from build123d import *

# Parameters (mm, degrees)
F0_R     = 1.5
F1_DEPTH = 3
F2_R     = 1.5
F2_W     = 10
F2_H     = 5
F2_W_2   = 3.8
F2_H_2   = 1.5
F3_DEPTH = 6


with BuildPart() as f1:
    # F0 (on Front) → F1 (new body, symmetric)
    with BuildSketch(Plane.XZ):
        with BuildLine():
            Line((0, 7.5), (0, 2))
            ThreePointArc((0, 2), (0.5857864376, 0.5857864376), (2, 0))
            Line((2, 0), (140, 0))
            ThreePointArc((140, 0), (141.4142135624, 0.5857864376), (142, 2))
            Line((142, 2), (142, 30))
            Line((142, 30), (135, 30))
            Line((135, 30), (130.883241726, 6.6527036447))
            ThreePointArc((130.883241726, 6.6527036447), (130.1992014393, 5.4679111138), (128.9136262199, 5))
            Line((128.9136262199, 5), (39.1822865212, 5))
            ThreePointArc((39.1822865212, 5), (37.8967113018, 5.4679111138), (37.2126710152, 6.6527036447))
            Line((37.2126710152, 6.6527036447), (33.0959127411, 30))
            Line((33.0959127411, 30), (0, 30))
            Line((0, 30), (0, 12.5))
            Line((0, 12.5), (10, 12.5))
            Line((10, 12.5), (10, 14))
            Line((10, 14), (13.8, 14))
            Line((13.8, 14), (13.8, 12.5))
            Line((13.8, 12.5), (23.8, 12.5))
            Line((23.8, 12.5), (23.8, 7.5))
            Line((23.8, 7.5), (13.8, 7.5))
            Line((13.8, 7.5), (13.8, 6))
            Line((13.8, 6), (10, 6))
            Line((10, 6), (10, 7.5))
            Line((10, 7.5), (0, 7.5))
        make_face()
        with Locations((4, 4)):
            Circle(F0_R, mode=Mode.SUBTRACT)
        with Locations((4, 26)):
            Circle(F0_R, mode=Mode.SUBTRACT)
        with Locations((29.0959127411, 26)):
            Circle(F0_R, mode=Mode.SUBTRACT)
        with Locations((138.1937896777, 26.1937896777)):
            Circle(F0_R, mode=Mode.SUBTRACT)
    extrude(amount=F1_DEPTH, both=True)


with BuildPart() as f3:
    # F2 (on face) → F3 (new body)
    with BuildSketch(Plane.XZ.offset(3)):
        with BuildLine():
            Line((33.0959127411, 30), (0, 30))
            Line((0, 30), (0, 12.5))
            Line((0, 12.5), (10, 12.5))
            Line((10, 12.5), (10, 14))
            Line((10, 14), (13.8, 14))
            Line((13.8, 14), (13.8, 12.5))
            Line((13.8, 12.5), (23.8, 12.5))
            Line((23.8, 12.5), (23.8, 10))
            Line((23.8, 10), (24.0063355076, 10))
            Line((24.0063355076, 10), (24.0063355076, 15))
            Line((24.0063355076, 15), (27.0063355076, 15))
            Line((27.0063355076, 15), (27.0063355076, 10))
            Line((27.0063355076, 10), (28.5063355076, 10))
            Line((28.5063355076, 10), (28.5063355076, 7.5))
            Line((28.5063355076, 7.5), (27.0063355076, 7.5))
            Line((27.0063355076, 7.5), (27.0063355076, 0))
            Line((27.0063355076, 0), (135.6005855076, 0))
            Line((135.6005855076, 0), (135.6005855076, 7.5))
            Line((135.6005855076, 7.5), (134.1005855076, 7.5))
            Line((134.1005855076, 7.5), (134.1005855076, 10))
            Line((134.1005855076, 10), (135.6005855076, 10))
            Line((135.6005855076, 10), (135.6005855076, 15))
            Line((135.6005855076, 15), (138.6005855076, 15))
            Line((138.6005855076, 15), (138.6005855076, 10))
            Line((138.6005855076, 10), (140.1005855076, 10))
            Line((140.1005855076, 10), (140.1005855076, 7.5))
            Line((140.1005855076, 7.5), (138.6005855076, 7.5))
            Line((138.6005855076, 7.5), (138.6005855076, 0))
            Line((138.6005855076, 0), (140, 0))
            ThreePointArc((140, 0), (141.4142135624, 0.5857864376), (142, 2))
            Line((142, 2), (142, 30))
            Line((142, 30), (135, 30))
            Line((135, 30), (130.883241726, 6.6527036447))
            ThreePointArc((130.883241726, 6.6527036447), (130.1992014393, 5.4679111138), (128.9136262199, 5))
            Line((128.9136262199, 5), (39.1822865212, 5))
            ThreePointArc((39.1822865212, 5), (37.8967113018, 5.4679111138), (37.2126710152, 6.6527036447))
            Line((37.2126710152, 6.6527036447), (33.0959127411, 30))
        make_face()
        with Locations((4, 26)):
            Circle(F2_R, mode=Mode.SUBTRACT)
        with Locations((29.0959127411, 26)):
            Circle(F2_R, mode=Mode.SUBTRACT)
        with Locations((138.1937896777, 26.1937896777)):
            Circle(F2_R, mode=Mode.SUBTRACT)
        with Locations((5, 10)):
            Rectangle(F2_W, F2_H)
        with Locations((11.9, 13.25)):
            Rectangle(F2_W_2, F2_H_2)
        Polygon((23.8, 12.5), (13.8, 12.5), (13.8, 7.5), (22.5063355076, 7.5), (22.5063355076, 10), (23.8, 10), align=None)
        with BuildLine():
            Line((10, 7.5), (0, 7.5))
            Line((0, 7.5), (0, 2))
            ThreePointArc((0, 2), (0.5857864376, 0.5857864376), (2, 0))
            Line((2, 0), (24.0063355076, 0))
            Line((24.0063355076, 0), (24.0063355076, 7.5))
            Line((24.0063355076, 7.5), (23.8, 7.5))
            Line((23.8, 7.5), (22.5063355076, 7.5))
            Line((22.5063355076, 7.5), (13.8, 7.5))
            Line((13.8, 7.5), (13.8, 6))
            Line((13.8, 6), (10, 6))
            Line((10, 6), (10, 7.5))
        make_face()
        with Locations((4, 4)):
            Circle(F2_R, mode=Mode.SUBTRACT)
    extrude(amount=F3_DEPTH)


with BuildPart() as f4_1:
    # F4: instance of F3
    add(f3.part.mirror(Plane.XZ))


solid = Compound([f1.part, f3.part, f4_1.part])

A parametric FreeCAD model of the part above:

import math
import FreeCAD as App
import Part
import Sketcher
from FreeCAD import Vector
Q = App.Units.Quantity

doc = App.newDocument("Part")
body = doc.addObject("PartDesign::Body", "Body")

sketch1 = body.newObject("Sketcher::SketchObject", "Sketch")
sketch1.AttachmentSupport = (doc.getObject("XZ_Plane"), [""])
sketch1.MapMode = "FlatFace"
sketch1.addGeometry([
    Part.LineSegment(Vector(0, 7.5, 0), Vector(0, 2, 0)),
    Part.ArcOfCircle(Part.Circle(Vector(2, 2, 0), Vector(0, 0, 1), 2), math.radians(180), math.radians(270)),
    Part.LineSegment(Vector(2, 0, 0), Vector(140, 0, 0)),
    Part.ArcOfCircle(Part.Circle(Vector(140, 2, 0), Vector(0, 0, 1), 2), math.radians(-90), math.radians(0)),
    Part.LineSegment(Vector(142, 2, 0), Vector(142, 30, 0)),
    Part.LineSegment(Vector(142, 30, 0), Vector(135, 30, 0)),
    Part.LineSegment(Vector(135, 30, 0), Vector(130.9, 6.7, 0)),
    Part.ArcOfCircle(Part.Circle(Vector(128.9, 7, 0), Vector(0, 0, 1), 2), math.radians(-90), math.radians(-10)),
    Part.LineSegment(Vector(128.9, 5, 0), Vector(39.2, 5, 0)),
    Part.ArcOfCircle(Part.Circle(Vector(39.2, 7, 0), Vector(0, 0, 1), 2), math.radians(-170), math.radians(-90)),
    Part.LineSegment(Vector(37.2, 6.7, 0), Vector(33.1, 30, 0)),
    Part.LineSegment(Vector(33.1, 30, 0), Vector(0, 30, 0)),
    Part.LineSegment(Vector(0, 30, 0), Vector(0, 12.5, 0)),
    Part.LineSegment(Vector(0, 12.5, 0), Vector(10, 12.5, 0)),
    Part.LineSegment(Vector(10, 12.5, 0), Vector(10, 14, 0)),
    Part.LineSegment(Vector(10, 14, 0), Vector(13.8, 14, 0)),
    Part.LineSegment(Vector(13.8, 14, 0), Vector(13.8, 12.5, 0)),
    Part.LineSegment(Vector(13.8, 12.5, 0), Vector(23.8, 12.5, 0)),
    Part.LineSegment(Vector(23.8, 12.5, 0), Vector(23.8, 7.5, 0)),
    Part.LineSegment(Vector(23.8, 7.5, 0), Vector(13.8, 7.5, 0)),
    Part.LineSegment(Vector(13.8, 7.5, 0), Vector(13.8, 6, 0)),
    Part.LineSegment(Vector(13.8, 6, 0), Vector(10, 6, 0)),
    Part.LineSegment(Vector(10, 6, 0), Vector(10, 7.5, 0)),
    Part.LineSegment(Vector(10, 7.5, 0), Vector(0, 7.5, 0)),
    Part.Circle(Vector(4, 4, 0), Vector(0, 0, 1), 1.5),
    Part.Circle(Vector(4, 26, 0), Vector(0, 0, 1), 1.5),
    Part.Circle(Vector(29.1, 26, 0), Vector(0, 0, 1), 1.5),
    Part.Circle(Vector(138.2, 26.2, 0), Vector(0, 0, 1), 1.5),
], False)
sketch1.addConstraint([
    Sketcher.Constraint("Tangent", 0, 2, 1, 1),
    Sketcher.Constraint("Tangent", 1, 2, 2, 1),
    Sketcher.Constraint("Tangent", 2, 2, 3, 1),
    Sketcher.Constraint("Tangent", 3, 2, 4, 1),
    Sketcher.Constraint("Coincident", 4, 2, 5, 1),
    Sketcher.Constraint("Coincident", 5, 2, 6, 1),
    Sketcher.Constraint("Tangent", 6, 2, 7, 2),
    Sketcher.Constraint("Tangent", 7, 1, 8, 1),
    Sketcher.Constraint("Tangent", 8, 2, 9, 2),
    Sketcher.Constraint("Tangent", 9, 1, 10, 1),
    Sketcher.Constraint("Coincident", 10, 2, 11, 1),
    Sketcher.Constraint("Coincident", 11, 2, 12, 1),
    Sketcher.Constraint("Coincident", 12, 2, 13, 1),
    Sketcher.Constraint("Coincident", 13, 2, 14, 1),
    Sketcher.Constraint("Coincident", 14, 2, 15, 1),
    Sketcher.Constraint("Coincident", 15, 2, 16, 1),
    Sketcher.Constraint("Coincident", 16, 2, 17, 1),
    Sketcher.Constraint("Coincident", 17, 2, 18, 1),
    Sketcher.Constraint("Coincident", 18, 2, 19, 1),
    Sketcher.Constraint("Coincident", 19, 2, 20, 1),
    Sketcher.Constraint("Coincident", 20, 2, 21, 1),
    Sketcher.Constraint("Coincident", 21, 2, 22, 1),
    Sketcher.Constraint("Coincident", 22, 2, 23, 1),
    Sketcher.Constraint("Coincident", 23, 2, 0, 1),
    Sketcher.Constraint("Vertical", 0),
    Sketcher.Constraint("Horizontal", 2),
    Sketcher.Constraint("Vertical", 4),
    Sketcher.Constraint("Horizontal", 5),
    Sketcher.Constraint("Horizontal", 8),
    Sketcher.Constraint("Horizontal", 11),
    Sketcher.Constraint("Vertical", 12),
    Sketcher.Constraint("Horizontal", 13),
    Sketcher.Constraint("Vertical", 14),
    Sketcher.Constraint("Horizontal", 15),
    Sketcher.Constraint("Vertical", 16),
    Sketcher.Constraint("Horizontal", 17),
    Sketcher.Constraint("Vertical", 18),
    Sketcher.Constraint("Horizontal", 19),
    Sketcher.Constraint("Vertical", 20),
    Sketcher.Constraint("Horizontal", 21),
    Sketcher.Constraint("Vertical", 22),
    Sketcher.Constraint("Horizontal", 23),
    Sketcher.Constraint("Equal", 1, 3),
    Sketcher.Constraint("Equal", 3, 7),
    Sketcher.Constraint("Equal", 7, 9),
    Sketcher.Constraint("Equal", 24, 25),
    Sketcher.Constraint("Equal", 25, 26),
    Sketcher.Constraint("Equal", 26, 27),
    Sketcher.Constraint("PointOnObject", 0, 2, -2),
    Sketcher.Constraint("PointOnObject", 1, 2, -1),
    Sketcher.Constraint("PointOnObject", 11, 2, -2),
    Sketcher.Constraint("Horizontal", 25, 3, 26, 3),
    Sketcher.Constraint("Horizontal", 6, 2, 9, 1),
    Sketcher.Constraint("Horizontal", 5, 2, 10, 2),
    Sketcher.Constraint("Horizontal", 13, 2, 16, 2),
    Sketcher.Constraint("Horizontal", 19, 2, 22, 2),
    Sketcher.Constraint("Vertical", 24, 3, 25, 3),
    Sketcher.Constraint("Vertical", 16, 2, 19, 2),
    Sketcher.Constraint("Vertical", 14, 2, 21, 2),
    Sketcher.Constraint("Equal", 13, 17),
    Sketcher.Constraint("Equal", 16, 20),
    Sketcher.Constraint("Diameter", 24, Q("3 mm")),
    Sketcher.Constraint("Radius", 1, Q("2 mm")),
    Sketcher.Constraint("DistanceX", 2, 1, 2, 2, Q("138 mm")),
    Sketcher.Constraint("DistanceX", 5, 2, 5, 1, Q("7 mm")),
    Sketcher.Constraint("DistanceX", 13, 1, 13, 2, Q("10 mm")),
    Sketcher.Constraint("DistanceY", 4, 1, 4, 2, Q("28 mm")),
    Sketcher.Constraint("DistanceY", 18, 2, 18, 1, Q("5 mm")),
    Sketcher.Constraint("Angle", 6, Q("-100 deg")),
    Sketcher.Constraint("DistanceX", 15, 1, 15, 2, Q("3.8 mm")),
    Sketcher.Constraint("DistanceY", 0, 2, 0, 1, Q("5.5 mm")),
    Sketcher.Constraint("DistanceY", 14, 1, 14, 2, Q("1.5 mm")),
    Sketcher.Constraint("DistanceY", -1, 1, 7, 3, Q("7 mm")),
    Sketcher.Constraint("DistanceX", -1, 1, 24, 3, Q("4 mm")),
    Sketcher.Constraint("DistanceY", -1, 1, 24, 3, Q("4 mm")),
    Sketcher.Constraint("DistanceY", -1, 1, 25, 3, Q("26 mm")),
    Sketcher.Constraint("DistanceX", 26, 3, 10, 2, Q("4 mm")),
    Sketcher.Constraint("DistanceX", 8, 2, 8, 1, Q("89.73134 mm")),
    Sketcher.Constraint("DistanceX", -1, 1, 27, 3, Q("138.19379 mm")),
    Sketcher.Constraint("DistanceY", -1, 1, 27, 3, Q("26.19379 mm")),
])
pad1 = body.newObject("PartDesign::Pad", "Pad")
pad1.Profile = sketch1
pad1.Length = 6
pad1.Midplane = True
body2 = doc.addObject("PartDesign::Body", "Body001")

sketch2 = body2.newObject("Sketcher::SketchObject", "Sketch001")
sketch2.AttachmentSupport = (doc.getObject("XZ_Plane001"), [""])
sketch2.MapMode = "FlatFace"
sketch2.AttachmentOffset = App.Placement(Vector(0, 0, 3), App.Rotation())
sketch2.addGeometry([
    Part.LineSegment(Vector(33.1, 30, 0), Vector(0, 30, 0)),
    Part.LineSegment(Vector(0, 30, 0), Vector(0, 2, 0)),
    Part.ArcOfCircle(Part.Circle(Vector(2, 2, 0), Vector(0, 0, 1), 2), math.radians(180), math.radians(270)),
    Part.LineSegment(Vector(2, 0, 0), Vector(24, 0, 0)),
    Part.LineSegment(Vector(24, 0, 0), Vector(24, 7.5, 0)),
    Part.LineSegment(Vector(24, 7.5, 0), Vector(22.5, 7.5, 0)),
    Part.LineSegment(Vector(22.5, 7.5, 0), Vector(22.5, 10, 0)),
    Part.LineSegment(Vector(22.5, 10, 0), Vector(24, 10, 0)),
    Part.LineSegment(Vector(24, 10, 0), Vector(24, 15, 0)),
    Part.LineSegment(Vector(24, 15, 0), Vector(27, 15, 0)),
    Part.LineSegment(Vector(27, 15, 0), Vector(27, 10, 0)),
    Part.LineSegment(Vector(27, 10, 0), Vector(28.5, 10, 0)),
    Part.LineSegment(Vector(28.5, 10, 0), Vector(28.5, 7.5, 0)),
    Part.LineSegment(Vector(28.5, 7.5, 0), Vector(27, 7.5, 0)),
    Part.LineSegment(Vector(27, 7.5, 0), Vector(27, 0, 0)),
    Part.LineSegment(Vector(27, 0, 0), Vector(135.6, 0, 0)),
    Part.LineSegment(Vector(135.6, 0, 0), Vector(135.6, 7.5, 0)),
    Part.LineSegment(Vector(135.6, 7.5, 0), Vector(134.1, 7.5, 0)),
    Part.LineSegment(Vector(134.1, 7.5, 0), Vector(134.1, 10, 0)),
    Part.LineSegment(Vector(134.1, 10, 0), Vector(135.6, 10, 0)),
    Part.LineSegment(Vector(135.6, 10, 0), Vector(135.6, 15, 0)),
    Part.LineSegment(Vector(135.6, 15, 0), Vector(138.6, 15, 0)),
    Part.LineSegment(Vector(138.6, 15, 0), Vector(138.6, 10, 0)),
    Part.LineSegment(Vector(138.6, 10, 0), Vector(140.1, 10, 0)),
    Part.LineSegment(Vector(140.1, 10, 0), Vector(140.1, 7.5, 0)),
    Part.LineSegment(Vector(140.1, 7.5, 0), Vector(138.6, 7.5, 0)),
    Part.LineSegment(Vector(138.6, 7.5, 0), Vector(138.6, 0, 0)),
    Part.LineSegment(Vector(138.6, 0, 0), Vector(140, 0, 0)),
    Part.ArcOfCircle(Part.Circle(Vector(140, 2, 0), Vector(0, 0, 1), 2), math.radians(-90), math.radians(0)),
    Part.LineSegment(Vector(142, 2, 0), Vector(142, 30, 0)),
    Part.LineSegment(Vector(142, 30, 0), Vector(135, 30, 0)),
    Part.LineSegment(Vector(135, 30, 0), Vector(130.9, 6.7, 0)),
    Part.ArcOfCircle(Part.Circle(Vector(128.9, 7, 0), Vector(0, 0, 1), 2), math.radians(-90), math.radians(-10)),
    Part.LineSegment(Vector(128.9, 5, 0), Vector(39.2, 5, 0)),
    Part.ArcOfCircle(Part.Circle(Vector(39.2, 7, 0), Vector(0, 0, 1), 2), math.radians(-170), math.radians(-90)),
    Part.LineSegment(Vector(37.2, 6.7, 0), Vector(33.1, 30, 0)),
    Part.Circle(Vector(4, 4, 0), Vector(0, 0, 1), 1.5),
    Part.LineSegment(Vector(10, 12.5, 0), Vector(13.8, 12.5, 0)),
    Part.LineSegment(Vector(13.8, 12.5, 0), Vector(13.8, 6, 0)),
    Part.LineSegment(Vector(13.8, 6, 0), Vector(10, 6, 0)),
    Part.LineSegment(Vector(10, 6, 0), Vector(10, 12.5, 0)),
    Part.Circle(Vector(4, 26, 0), Vector(0, 0, 1), 1.5),
    Part.Circle(Vector(29.1, 26, 0), Vector(0, 0, 1), 1.5),
    Part.Circle(Vector(138.2, 26.2, 0), Vector(0, 0, 1), 1.5),
], False)
sketch2.addConstraint([
    Sketcher.Constraint("Coincident", 0, 2, 1, 1),
    Sketcher.Constraint("Tangent", 1, 2, 2, 1),
    Sketcher.Constraint("Tangent", 2, 2, 3, 1),
    Sketcher.Constraint("Coincident", 3, 2, 4, 1),
    Sketcher.Constraint("Coincident", 4, 2, 5, 1),
    Sketcher.Constraint("Coincident", 5, 2, 6, 1),
    Sketcher.Constraint("Coincident", 6, 2, 7, 1),
    Sketcher.Constraint("Coincident", 7, 2, 8, 1),
    Sketcher.Constraint("Coincident", 8, 2, 9, 1),
    Sketcher.Constraint("Coincident", 9, 2, 10, 1),
    Sketcher.Constraint("Coincident", 10, 2, 11, 1),
    Sketcher.Constraint("Coincident", 11, 2, 12, 1),
    Sketcher.Constraint("Coincident", 12, 2, 13, 1),
    Sketcher.Constraint("Coincident", 13, 2, 14, 1),
    Sketcher.Constraint("Coincident", 14, 2, 15, 1),
    Sketcher.Constraint("Coincident", 15, 2, 16, 1),
    Sketcher.Constraint("Coincident", 16, 2, 17, 1),
    Sketcher.Constraint("Coincident", 17, 2, 18, 1),
    Sketcher.Constraint("Coincident", 18, 2, 19, 1),
    Sketcher.Constraint("Coincident", 19, 2, 20, 1),
    Sketcher.Constraint("Coincident", 20, 2, 21, 1),
    Sketcher.Constraint("Coincident", 21, 2, 22, 1),
    Sketcher.Constraint("Coincident", 22, 2, 23, 1),
    Sketcher.Constraint("Coincident", 23, 2, 24, 1),
    Sketcher.Constraint("Coincident", 24, 2, 25, 1),
    Sketcher.Constraint("Coincident", 25, 2, 26, 1),
    Sketcher.Constraint("Coincident", 26, 2, 27, 1),
    Sketcher.Constraint("Tangent", 27, 2, 28, 1),
    Sketcher.Constraint("Tangent", 28, 2, 29, 1),
    Sketcher.Constraint("Coincident", 29, 2, 30, 1),
    Sketcher.Constraint("Coincident", 30, 2, 31, 1),
    Sketcher.Constraint("Tangent", 31, 2, 32, 2),
    Sketcher.Constraint("Tangent", 32, 1, 33, 1),
    Sketcher.Constraint("Tangent", 33, 2, 34, 2),
    Sketcher.Constraint("Tangent", 34, 1, 35, 1),
    Sketcher.Constraint("Coincident", 35, 2, 0, 1),
    Sketcher.Constraint("Coincident", 37, 2, 38, 1),
    Sketcher.Constraint("Coincident", 38, 2, 39, 1),
    Sketcher.Constraint("Coincident", 39, 2, 40, 1),
    Sketcher.Constraint("Coincident", 40, 2, 37, 1),
    Sketcher.Constraint("Horizontal", 0),
    Sketcher.Constraint("Vertical", 1),
    Sketcher.Constraint("Horizontal", 3),
    Sketcher.Constraint("Vertical", 4),
    Sketcher.Constraint("Horizontal", 5),
    Sketcher.Constraint("Vertical", 6),
    Sketcher.Constraint("Horizontal", 7),
    Sketcher.Constraint("Vertical", 8),
    Sketcher.Constraint("Horizontal", 9),
    Sketcher.Constraint("Vertical", 10),
    Sketcher.Constraint("Horizontal", 11),
    Sketcher.Constraint("Vertical", 12),
    Sketcher.Constraint("Horizontal", 13),
    Sketcher.Constraint("Vertical", 14),
    Sketcher.Constraint("Horizontal", 15),
    Sketcher.Constraint("Vertical", 16),
    Sketcher.Constraint("Horizontal", 17),
    Sketcher.Constraint("Vertical", 18),
    Sketcher.Constraint("Horizontal", 19),
    Sketcher.Constraint("Vertical", 20),
    Sketcher.Constraint("Horizontal", 21),
    Sketcher.Constraint("Vertical", 22),
    Sketcher.Constraint("Horizontal", 23),
    Sketcher.Constraint("Vertical", 24),
    Sketcher.Constraint("Horizontal", 25),
    Sketcher.Constraint("Vertical", 26),
    Sketcher.Constraint("Horizontal", 27),
    Sketcher.Constraint("Vertical", 29),
    Sketcher.Constraint("Horizontal", 30),
    Sketcher.Constraint("Horizontal", 33),
    Sketcher.Constraint("Horizontal", 37),
    Sketcher.Constraint("Vertical", 38),
    Sketcher.Constraint("Horizontal", 39),
    Sketcher.Constraint("Vertical", 40),
    Sketcher.Constraint("Equal", 2, 28),
    Sketcher.Constraint("Equal", 28, 32),
    Sketcher.Constraint("Equal", 32, 34),
    Sketcher.Constraint("Equal", 36, 41),
    Sketcher.Constraint("Equal", 41, 42),
    Sketcher.Constraint("Equal", 42, 43),
    Sketcher.Constraint("PointOnObject", 0, 2, -2),
    Sketcher.Constraint("PointOnObject", 2, 2, -1),
    Sketcher.Constraint("PointOnObject", 14, 2, -1),
    Sketcher.Constraint("PointOnObject", 26, 2, -1),
    Sketcher.Constraint("Horizontal", 41, 3, 42, 3),
    Sketcher.Constraint("Horizontal", 7, 2, 10, 2),
    Sketcher.Constraint("Horizontal", 5, 2, 12, 2),
    Sketcher.Constraint("Horizontal", 13, 2, 16, 2),
    Sketcher.Constraint("Horizontal", 11, 2, 18, 2),
    Sketcher.Constraint("Horizontal", 9, 2, 20, 2),
    Sketcher.Constraint("Horizontal", 19, 2, 22, 2),
    Sketcher.Constraint("Horizontal", 17, 2, 24, 2),
    Sketcher.Constraint("Horizontal", 0, 2, 29, 2),
    Sketcher.Constraint("Horizontal", 31, 2, 34, 1),
    Sketcher.Constraint("Vertical", 36, 3, 41, 3),
    Sketcher.Constraint("Vertical", 4, 2, 7, 2),
    Sketcher.Constraint("Vertical", 10, 2, 13, 2),
    Sketcher.Constraint("Vertical", 16, 2, 19, 2),
    Sketcher.Constraint("Vertical", 22, 2, 25, 2),
    Sketcher.Constraint("Equal", 7, 11),
    Sketcher.Constraint("Equal", 13, 17),
    Sketcher.Constraint("Equal", 9, 21),
    Sketcher.Constraint("Equal", 19, 23),
    Sketcher.Constraint("Diameter", 36, Q("3 mm")),
    Sketcher.Constraint("Radius", 2, Q("2 mm")),
    Sketcher.Constraint("DistanceX", 9, 1, 9, 2, Q("3 mm")),
    Sketcher.Constraint("DistanceX", 30, 2, 30, 1, Q("7 mm")),
    Sketcher.Constraint("DistanceY", 1, 2, 1, 1, Q("28 mm")),
    Sketcher.Constraint("DistanceY", 8, 1, 8, 2, Q("5 mm")),
    Sketcher.Constraint("Angle", 31, Q("-100 deg")),
    Sketcher.Constraint("DistanceX", 5, 2, 5, 1, Q("1.5 mm")),
    Sketcher.Constraint("DistanceX", 37, 1, 37, 2, Q("3.8 mm")),
    Sketcher.Constraint("DistanceY", 4, 1, 4, 2, Q("7.5 mm")),
    Sketcher.Constraint("DistanceY", 6, 1, 6, 2, Q("2.5 mm")),
    Sketcher.Constraint("DistanceY", 38, 2, 38, 1, Q("6.5 mm")),
    Sketcher.Constraint("DistanceX", -1, 1, 28, 3, Q("140 mm")),
    Sketcher.Constraint("DistanceY", -1, 1, 32, 3, Q("7 mm")),
    Sketcher.Constraint("DistanceX", -1, 1, 36, 3, Q("4 mm")),
    Sketcher.Constraint("DistanceY", -1, 1, 36, 3, Q("4 mm")),
    Sketcher.Constraint("DistanceY", -1, 1, 41, 3, Q("26 mm")),
    Sketcher.Constraint("DistanceY", -1, 1, 38, 2, Q("6 mm")),
    Sketcher.Constraint("DistanceX", -1, 1, 39, 2, Q("10 mm")),
    Sketcher.Constraint("DistanceX", 42, 3, 35, 2, Q("4 mm")),
    Sketcher.Constraint("DistanceX", 15, 1, 15, 2, Q("108.59425 mm")),
    Sketcher.Constraint("DistanceX", 33, 2, 33, 1, Q("89.73134 mm")),
    Sketcher.Constraint("DistanceX", 34, 3, 15, 2, Q("96.418299 mm")),
    Sketcher.Constraint("DistanceX", -1, 1, 43, 3, Q("138.19379 mm")),
    Sketcher.Constraint("DistanceY", -1, 1, 43, 3, Q("26.19379 mm")),
])
pad2 = body2.newObject("PartDesign::Pad", "Pad001")
pad2.Profile = sketch2
pad2.Length = 6
body3 = doc.addObject("PartDesign::Body", "Body002")
doc.recompute()

mirroring = doc.addObject("Part::Mirroring", "Mirroring")
mirroring.Source = body2
mirroring.Base = Vector(0, 0, 0)
mirroring.Normal = Vector(0, -1, 0)
body3.BaseFeature = mirroring
doc.recompute()
mirroring.Visibility = False

doc.recompute()
